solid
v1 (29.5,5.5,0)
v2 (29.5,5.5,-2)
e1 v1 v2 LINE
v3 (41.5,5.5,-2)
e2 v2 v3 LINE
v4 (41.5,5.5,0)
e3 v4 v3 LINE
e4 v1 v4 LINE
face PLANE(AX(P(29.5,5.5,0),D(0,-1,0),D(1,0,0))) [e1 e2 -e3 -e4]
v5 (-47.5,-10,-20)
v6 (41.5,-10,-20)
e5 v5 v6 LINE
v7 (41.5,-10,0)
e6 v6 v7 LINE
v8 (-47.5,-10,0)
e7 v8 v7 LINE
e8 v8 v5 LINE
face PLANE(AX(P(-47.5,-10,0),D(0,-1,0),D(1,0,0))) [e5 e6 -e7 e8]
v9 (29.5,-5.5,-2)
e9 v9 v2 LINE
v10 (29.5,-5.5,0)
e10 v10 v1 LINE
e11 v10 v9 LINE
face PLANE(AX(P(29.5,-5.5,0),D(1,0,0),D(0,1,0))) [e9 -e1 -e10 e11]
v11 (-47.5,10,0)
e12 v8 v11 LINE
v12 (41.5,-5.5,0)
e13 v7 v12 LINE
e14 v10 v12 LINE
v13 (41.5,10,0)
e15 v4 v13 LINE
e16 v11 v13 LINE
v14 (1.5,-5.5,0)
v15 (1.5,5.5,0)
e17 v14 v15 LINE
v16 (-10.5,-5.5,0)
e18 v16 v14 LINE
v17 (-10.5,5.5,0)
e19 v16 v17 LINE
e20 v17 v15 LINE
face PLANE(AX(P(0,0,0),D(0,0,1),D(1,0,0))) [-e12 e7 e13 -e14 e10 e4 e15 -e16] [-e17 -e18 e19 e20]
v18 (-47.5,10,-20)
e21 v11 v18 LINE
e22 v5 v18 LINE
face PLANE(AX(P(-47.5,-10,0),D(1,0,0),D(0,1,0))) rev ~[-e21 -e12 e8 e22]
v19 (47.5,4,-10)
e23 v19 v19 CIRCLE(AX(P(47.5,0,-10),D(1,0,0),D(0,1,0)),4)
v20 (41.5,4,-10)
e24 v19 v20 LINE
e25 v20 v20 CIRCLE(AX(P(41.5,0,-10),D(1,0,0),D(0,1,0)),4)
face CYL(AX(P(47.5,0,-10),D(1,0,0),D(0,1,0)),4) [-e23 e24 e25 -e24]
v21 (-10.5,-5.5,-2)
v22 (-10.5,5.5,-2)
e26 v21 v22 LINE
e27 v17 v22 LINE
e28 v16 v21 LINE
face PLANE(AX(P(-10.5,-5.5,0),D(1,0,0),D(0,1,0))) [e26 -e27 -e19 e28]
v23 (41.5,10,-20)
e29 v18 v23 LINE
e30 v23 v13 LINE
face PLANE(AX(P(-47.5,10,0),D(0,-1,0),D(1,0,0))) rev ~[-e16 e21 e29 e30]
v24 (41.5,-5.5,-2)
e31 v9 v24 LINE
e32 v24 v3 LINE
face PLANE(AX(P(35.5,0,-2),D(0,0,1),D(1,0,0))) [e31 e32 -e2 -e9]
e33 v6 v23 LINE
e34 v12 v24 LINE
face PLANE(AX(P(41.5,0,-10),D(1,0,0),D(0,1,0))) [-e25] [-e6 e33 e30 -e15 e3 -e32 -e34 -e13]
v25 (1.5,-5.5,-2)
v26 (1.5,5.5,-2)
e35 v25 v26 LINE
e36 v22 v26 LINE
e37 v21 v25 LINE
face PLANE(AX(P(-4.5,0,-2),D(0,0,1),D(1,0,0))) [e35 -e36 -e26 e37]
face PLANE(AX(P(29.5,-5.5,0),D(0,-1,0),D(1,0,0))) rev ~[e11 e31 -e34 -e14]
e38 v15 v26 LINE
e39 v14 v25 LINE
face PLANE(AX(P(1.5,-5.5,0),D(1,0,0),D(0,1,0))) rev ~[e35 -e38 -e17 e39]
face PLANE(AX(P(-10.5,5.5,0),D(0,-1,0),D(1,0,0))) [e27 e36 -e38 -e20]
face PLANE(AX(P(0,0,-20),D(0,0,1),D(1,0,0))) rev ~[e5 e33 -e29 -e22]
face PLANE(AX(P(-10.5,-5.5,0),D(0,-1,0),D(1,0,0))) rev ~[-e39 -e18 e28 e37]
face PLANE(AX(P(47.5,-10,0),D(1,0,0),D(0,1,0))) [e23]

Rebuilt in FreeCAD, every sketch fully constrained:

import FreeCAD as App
import Part
import Sketcher

doc = App.newDocument("Part")
params = doc.addObject("Spreadsheet::Sheet", "Params")
for row, (alias, value) in enumerate([
    ("sketch1_width", "95 mm"),
    ("sketch1_height", "20 mm"),
    ("pad1_length", "20 mm"),
    ("sketch2_diameter", "8 mm"),
    ("sketch2_width", "20 mm"),
    ("pocket1_length", "6 mm"),
    ("sketch3_width", "12 mm"),
    ("sketch3_height", "11 mm"),
    ("pocket2_length", "2 mm"),
], start=1):
    params.set(f"A{row}", alias)
    params.set(f"B{row}", "=" + value)
    params.setAlias(f"B{row}", alias)

body = doc.addObject("PartDesign::Body", "Body")

# Sketch on XY plane
sketch1 = body.newObject("Sketcher::SketchObject", "Sketch")
sketch1.AttachmentSupport = (doc.getObject("XY_Plane"), [""])
sketch1.MapMode = "FlatFace"
sketch1.addGeometry([
    Part.LineSegment(App.Vector(-48, 10, 0), App.Vector(-48, -10, 0)),
    Part.LineSegment(App.Vector(-48, -10, 0), App.Vector(48, -10, 0)),
    Part.LineSegment(App.Vector(48, -10, 0), App.Vector(48, 10, 0)),
    Part.LineSegment(App.Vector(48, 10, 0), App.Vector(-48, 10, 0)),
], False)
sketch1.addConstraint([
    Sketcher.Constraint("Coincident", 0, 2, 1, 1),
    Sketcher.Constraint("Coincident", 1, 2, 2, 1),
    Sketcher.Constraint("Coincident", 2, 2, 3, 1),
    Sketcher.Constraint("Coincident", 3, 2, 0, 1),
    Sketcher.Constraint("Vertical", 0),
    Sketcher.Constraint("Horizontal", 1),
    Sketcher.Constraint("Vertical", 2),
    Sketcher.Constraint("Horizontal", 3),
    Sketcher.Constraint("Symmetric", 0, 2, 2, 2, -1, 1),
    Sketcher.Constraint("DistanceX", 1, 1, 1, 2, 95.0),
    Sketcher.Constraint("DistanceY", 0, 2, 0, 1, 20.0),
])
sketch1.setExpression("Constraints[9]", "Params.sketch1_width")
sketch1.setExpression("Constraints[10]", "Params.sketch1_height")
pad1 = body.newObject("PartDesign::Pad", "Pad")
pad1.Profile = sketch1
pad1.setExpression("Length", "Params.pad1_length")
pad1.Reversed = True

# Sketch on YZ plane
sketch2 = body.newObject("Sketcher::SketchObject", "Sketch001")
sketch2.AttachmentSupport = (doc.getObject("YZ_Plane"), [""])
sketch2.MapMode = "FlatFace"
sketch2.AttachmentOffset = App.Placement(App.Vector(0, 0, 47.5), App.Rotation())
sketch2.addGeometry([
    Part.LineSegment(App.Vector(-10, 0, 0), App.Vector(-10, -20, 0)),  # 0
    Part.LineSegment(App.Vector(-10, -20, 0), App.Vector(10, -20, 0)),  # 1
    Part.LineSegment(App.Vector(10, -20, 0), App.Vector(10, 0, 0)),  # 2
    Part.LineSegment(App.Vector(10, 0, 0), App.Vector(-10, 0, 0)),  # 3
    Part.Circle(App.Vector(0, -10, 0), App.Vector(0, 0, 1), 4),  # 4
], False)
sketch2.addConstraint([
    Sketcher.Constraint("Coincident", 0, 2, 1, 1),
    Sketcher.Constraint("Coincident", 1, 2, 2, 1),
    Sketcher.Constraint("Coincident", 2, 2, 3, 1),
    Sketcher.Constraint("Coincident", 3, 2, 0, 1),
    Sketcher.Constraint("Vertical", 0),
    Sketcher.Constraint("Horizontal", 1),
    Sketcher.Constraint("Vertical", 2),
    Sketcher.Constraint("Horizontal", 3),
    Sketcher.Constraint("Symmetric", 2, 2, 3, 2, -1, 1),
    Sketcher.Constraint("PointOnObject", 4, 3, -2),
    Sketcher.Constraint("Equal", 3, 0),
    Sketcher.Constraint("Diameter", 4, 8.0),
    Sketcher.Constraint("DistanceX", 1, 1, 1, 2, 20.0),
    Sketcher.Constraint("DistanceY", 4, 3, -1, 1, 10.0),
])
sketch2.setExpression("Constraints[11]", "Params.sketch2_diameter")
sketch2.setExpression("Constraints[12]", "Params.sketch2_width")
pocket1 = body.newObject("PartDesign::Pocket", "Pocket")
pocket1.Profile = sketch2
pocket1.setExpression("Length", "Params.pocket1_length")

# Sketch on XY plane
sketch3 = body.newObject("Sketcher::SketchObject", "Sketch002")
sketch3.AttachmentSupport = (doc.getObject("XY_Plane"), [""])
sketch3.MapMode = "FlatFace"
sketch3.addGeometry([
    Part.LineSegment(App.Vector(30, 6, 0), App.Vector(30, -6, 0)),  # 0
    Part.LineSegment(App.Vector(30, -6, 0), App.Vector(42, -6, 0)),  # 1
    Part.LineSegment(App.Vector(42, -6, 0), App.Vector(42, 6, 0)),  # 2
    Part.LineSegment(App.Vector(42, 6, 0), App.Vector(30, 6, 0)),  # 3
    Part.LineSegment(App.Vector(-10, 6, 0), App.Vector(-10, -6, 0)),  # 4
    Part.LineSegment(App.Vector(-10, -6, 0), App.Vector(2, -6, 0)),  # 5
    Part.LineSegment(App.Vector(2, -6, 0), App.Vector(2, 6, 0)),  # 6
    Part.LineSegment(App.Vector(2, 6, 0), App.Vector(-10, 6, 0)),  # 7
], False)
sketch3.addConstraint([
    Sketcher.Constraint("Coincident", 0, 2, 1, 1),
    Sketcher.Constraint("Coincident", 1, 2, 2, 1),
    Sketcher.Constraint("Coincident", 2, 2, 3, 1),
    Sketcher.Constraint("Coincident", 3, 2, 0, 1),
    Sketcher.Constraint("Coincident", 4, 2, 5, 1),
    Sketcher.Constraint("Coincident", 5, 2, 6, 1),
    Sketcher.Constraint("Coincident", 6, 2, 7, 1),
    Sketcher.Constraint("Coincident", 7, 2, 4, 1),
    Sketcher.Constraint("Vertical", 0),
    Sketcher.Constraint("Horizontal", 1),
    Sketcher.Constraint("Vertical", 2),
    Sketcher.Constraint("Horizontal", 3),
    Sketcher.Constraint("Vertical", 4),
    Sketcher.Constraint("Horizontal", 5),
    Sketcher.Constraint("Vertical", 6),
    Sketcher.Constraint("Horizontal", 7),
    Sketcher.Constraint("Horizontal", 1, 2, 4, 2),
    Sketcher.Constraint("Horizontal", 3, 2, 6, 2),
    Sketcher.Constraint("Equal", 3, 5),
    Sketcher.Constraint("DistanceX", 1, 1, 1, 2, 12.0),
    Sketcher.Constraint("DistanceY", 0, 2, 0, 1, 11.0),
    Sketcher.Constraint("DistanceX", 4, 2, 0, 2, 40.0),
    Sketcher.Constraint("DistanceX", -1, 1, 0, 2, 29.5),
    Sketcher.Constraint("DistanceY", 0, 2, -1, 1, 5.5),
])
sketch3.setExpression("Constraints[19]", "Params.sketch3_width")
sketch3.setExpression("Constraints[20]", "Params.sketch3_height")
pocket2 = body.newObject("PartDesign::Pocket", "Pocket001")
pocket2.Profile = sketch3
pocket2.setExpression("Length", "Params.pocket2_length")

doc.recompute()
